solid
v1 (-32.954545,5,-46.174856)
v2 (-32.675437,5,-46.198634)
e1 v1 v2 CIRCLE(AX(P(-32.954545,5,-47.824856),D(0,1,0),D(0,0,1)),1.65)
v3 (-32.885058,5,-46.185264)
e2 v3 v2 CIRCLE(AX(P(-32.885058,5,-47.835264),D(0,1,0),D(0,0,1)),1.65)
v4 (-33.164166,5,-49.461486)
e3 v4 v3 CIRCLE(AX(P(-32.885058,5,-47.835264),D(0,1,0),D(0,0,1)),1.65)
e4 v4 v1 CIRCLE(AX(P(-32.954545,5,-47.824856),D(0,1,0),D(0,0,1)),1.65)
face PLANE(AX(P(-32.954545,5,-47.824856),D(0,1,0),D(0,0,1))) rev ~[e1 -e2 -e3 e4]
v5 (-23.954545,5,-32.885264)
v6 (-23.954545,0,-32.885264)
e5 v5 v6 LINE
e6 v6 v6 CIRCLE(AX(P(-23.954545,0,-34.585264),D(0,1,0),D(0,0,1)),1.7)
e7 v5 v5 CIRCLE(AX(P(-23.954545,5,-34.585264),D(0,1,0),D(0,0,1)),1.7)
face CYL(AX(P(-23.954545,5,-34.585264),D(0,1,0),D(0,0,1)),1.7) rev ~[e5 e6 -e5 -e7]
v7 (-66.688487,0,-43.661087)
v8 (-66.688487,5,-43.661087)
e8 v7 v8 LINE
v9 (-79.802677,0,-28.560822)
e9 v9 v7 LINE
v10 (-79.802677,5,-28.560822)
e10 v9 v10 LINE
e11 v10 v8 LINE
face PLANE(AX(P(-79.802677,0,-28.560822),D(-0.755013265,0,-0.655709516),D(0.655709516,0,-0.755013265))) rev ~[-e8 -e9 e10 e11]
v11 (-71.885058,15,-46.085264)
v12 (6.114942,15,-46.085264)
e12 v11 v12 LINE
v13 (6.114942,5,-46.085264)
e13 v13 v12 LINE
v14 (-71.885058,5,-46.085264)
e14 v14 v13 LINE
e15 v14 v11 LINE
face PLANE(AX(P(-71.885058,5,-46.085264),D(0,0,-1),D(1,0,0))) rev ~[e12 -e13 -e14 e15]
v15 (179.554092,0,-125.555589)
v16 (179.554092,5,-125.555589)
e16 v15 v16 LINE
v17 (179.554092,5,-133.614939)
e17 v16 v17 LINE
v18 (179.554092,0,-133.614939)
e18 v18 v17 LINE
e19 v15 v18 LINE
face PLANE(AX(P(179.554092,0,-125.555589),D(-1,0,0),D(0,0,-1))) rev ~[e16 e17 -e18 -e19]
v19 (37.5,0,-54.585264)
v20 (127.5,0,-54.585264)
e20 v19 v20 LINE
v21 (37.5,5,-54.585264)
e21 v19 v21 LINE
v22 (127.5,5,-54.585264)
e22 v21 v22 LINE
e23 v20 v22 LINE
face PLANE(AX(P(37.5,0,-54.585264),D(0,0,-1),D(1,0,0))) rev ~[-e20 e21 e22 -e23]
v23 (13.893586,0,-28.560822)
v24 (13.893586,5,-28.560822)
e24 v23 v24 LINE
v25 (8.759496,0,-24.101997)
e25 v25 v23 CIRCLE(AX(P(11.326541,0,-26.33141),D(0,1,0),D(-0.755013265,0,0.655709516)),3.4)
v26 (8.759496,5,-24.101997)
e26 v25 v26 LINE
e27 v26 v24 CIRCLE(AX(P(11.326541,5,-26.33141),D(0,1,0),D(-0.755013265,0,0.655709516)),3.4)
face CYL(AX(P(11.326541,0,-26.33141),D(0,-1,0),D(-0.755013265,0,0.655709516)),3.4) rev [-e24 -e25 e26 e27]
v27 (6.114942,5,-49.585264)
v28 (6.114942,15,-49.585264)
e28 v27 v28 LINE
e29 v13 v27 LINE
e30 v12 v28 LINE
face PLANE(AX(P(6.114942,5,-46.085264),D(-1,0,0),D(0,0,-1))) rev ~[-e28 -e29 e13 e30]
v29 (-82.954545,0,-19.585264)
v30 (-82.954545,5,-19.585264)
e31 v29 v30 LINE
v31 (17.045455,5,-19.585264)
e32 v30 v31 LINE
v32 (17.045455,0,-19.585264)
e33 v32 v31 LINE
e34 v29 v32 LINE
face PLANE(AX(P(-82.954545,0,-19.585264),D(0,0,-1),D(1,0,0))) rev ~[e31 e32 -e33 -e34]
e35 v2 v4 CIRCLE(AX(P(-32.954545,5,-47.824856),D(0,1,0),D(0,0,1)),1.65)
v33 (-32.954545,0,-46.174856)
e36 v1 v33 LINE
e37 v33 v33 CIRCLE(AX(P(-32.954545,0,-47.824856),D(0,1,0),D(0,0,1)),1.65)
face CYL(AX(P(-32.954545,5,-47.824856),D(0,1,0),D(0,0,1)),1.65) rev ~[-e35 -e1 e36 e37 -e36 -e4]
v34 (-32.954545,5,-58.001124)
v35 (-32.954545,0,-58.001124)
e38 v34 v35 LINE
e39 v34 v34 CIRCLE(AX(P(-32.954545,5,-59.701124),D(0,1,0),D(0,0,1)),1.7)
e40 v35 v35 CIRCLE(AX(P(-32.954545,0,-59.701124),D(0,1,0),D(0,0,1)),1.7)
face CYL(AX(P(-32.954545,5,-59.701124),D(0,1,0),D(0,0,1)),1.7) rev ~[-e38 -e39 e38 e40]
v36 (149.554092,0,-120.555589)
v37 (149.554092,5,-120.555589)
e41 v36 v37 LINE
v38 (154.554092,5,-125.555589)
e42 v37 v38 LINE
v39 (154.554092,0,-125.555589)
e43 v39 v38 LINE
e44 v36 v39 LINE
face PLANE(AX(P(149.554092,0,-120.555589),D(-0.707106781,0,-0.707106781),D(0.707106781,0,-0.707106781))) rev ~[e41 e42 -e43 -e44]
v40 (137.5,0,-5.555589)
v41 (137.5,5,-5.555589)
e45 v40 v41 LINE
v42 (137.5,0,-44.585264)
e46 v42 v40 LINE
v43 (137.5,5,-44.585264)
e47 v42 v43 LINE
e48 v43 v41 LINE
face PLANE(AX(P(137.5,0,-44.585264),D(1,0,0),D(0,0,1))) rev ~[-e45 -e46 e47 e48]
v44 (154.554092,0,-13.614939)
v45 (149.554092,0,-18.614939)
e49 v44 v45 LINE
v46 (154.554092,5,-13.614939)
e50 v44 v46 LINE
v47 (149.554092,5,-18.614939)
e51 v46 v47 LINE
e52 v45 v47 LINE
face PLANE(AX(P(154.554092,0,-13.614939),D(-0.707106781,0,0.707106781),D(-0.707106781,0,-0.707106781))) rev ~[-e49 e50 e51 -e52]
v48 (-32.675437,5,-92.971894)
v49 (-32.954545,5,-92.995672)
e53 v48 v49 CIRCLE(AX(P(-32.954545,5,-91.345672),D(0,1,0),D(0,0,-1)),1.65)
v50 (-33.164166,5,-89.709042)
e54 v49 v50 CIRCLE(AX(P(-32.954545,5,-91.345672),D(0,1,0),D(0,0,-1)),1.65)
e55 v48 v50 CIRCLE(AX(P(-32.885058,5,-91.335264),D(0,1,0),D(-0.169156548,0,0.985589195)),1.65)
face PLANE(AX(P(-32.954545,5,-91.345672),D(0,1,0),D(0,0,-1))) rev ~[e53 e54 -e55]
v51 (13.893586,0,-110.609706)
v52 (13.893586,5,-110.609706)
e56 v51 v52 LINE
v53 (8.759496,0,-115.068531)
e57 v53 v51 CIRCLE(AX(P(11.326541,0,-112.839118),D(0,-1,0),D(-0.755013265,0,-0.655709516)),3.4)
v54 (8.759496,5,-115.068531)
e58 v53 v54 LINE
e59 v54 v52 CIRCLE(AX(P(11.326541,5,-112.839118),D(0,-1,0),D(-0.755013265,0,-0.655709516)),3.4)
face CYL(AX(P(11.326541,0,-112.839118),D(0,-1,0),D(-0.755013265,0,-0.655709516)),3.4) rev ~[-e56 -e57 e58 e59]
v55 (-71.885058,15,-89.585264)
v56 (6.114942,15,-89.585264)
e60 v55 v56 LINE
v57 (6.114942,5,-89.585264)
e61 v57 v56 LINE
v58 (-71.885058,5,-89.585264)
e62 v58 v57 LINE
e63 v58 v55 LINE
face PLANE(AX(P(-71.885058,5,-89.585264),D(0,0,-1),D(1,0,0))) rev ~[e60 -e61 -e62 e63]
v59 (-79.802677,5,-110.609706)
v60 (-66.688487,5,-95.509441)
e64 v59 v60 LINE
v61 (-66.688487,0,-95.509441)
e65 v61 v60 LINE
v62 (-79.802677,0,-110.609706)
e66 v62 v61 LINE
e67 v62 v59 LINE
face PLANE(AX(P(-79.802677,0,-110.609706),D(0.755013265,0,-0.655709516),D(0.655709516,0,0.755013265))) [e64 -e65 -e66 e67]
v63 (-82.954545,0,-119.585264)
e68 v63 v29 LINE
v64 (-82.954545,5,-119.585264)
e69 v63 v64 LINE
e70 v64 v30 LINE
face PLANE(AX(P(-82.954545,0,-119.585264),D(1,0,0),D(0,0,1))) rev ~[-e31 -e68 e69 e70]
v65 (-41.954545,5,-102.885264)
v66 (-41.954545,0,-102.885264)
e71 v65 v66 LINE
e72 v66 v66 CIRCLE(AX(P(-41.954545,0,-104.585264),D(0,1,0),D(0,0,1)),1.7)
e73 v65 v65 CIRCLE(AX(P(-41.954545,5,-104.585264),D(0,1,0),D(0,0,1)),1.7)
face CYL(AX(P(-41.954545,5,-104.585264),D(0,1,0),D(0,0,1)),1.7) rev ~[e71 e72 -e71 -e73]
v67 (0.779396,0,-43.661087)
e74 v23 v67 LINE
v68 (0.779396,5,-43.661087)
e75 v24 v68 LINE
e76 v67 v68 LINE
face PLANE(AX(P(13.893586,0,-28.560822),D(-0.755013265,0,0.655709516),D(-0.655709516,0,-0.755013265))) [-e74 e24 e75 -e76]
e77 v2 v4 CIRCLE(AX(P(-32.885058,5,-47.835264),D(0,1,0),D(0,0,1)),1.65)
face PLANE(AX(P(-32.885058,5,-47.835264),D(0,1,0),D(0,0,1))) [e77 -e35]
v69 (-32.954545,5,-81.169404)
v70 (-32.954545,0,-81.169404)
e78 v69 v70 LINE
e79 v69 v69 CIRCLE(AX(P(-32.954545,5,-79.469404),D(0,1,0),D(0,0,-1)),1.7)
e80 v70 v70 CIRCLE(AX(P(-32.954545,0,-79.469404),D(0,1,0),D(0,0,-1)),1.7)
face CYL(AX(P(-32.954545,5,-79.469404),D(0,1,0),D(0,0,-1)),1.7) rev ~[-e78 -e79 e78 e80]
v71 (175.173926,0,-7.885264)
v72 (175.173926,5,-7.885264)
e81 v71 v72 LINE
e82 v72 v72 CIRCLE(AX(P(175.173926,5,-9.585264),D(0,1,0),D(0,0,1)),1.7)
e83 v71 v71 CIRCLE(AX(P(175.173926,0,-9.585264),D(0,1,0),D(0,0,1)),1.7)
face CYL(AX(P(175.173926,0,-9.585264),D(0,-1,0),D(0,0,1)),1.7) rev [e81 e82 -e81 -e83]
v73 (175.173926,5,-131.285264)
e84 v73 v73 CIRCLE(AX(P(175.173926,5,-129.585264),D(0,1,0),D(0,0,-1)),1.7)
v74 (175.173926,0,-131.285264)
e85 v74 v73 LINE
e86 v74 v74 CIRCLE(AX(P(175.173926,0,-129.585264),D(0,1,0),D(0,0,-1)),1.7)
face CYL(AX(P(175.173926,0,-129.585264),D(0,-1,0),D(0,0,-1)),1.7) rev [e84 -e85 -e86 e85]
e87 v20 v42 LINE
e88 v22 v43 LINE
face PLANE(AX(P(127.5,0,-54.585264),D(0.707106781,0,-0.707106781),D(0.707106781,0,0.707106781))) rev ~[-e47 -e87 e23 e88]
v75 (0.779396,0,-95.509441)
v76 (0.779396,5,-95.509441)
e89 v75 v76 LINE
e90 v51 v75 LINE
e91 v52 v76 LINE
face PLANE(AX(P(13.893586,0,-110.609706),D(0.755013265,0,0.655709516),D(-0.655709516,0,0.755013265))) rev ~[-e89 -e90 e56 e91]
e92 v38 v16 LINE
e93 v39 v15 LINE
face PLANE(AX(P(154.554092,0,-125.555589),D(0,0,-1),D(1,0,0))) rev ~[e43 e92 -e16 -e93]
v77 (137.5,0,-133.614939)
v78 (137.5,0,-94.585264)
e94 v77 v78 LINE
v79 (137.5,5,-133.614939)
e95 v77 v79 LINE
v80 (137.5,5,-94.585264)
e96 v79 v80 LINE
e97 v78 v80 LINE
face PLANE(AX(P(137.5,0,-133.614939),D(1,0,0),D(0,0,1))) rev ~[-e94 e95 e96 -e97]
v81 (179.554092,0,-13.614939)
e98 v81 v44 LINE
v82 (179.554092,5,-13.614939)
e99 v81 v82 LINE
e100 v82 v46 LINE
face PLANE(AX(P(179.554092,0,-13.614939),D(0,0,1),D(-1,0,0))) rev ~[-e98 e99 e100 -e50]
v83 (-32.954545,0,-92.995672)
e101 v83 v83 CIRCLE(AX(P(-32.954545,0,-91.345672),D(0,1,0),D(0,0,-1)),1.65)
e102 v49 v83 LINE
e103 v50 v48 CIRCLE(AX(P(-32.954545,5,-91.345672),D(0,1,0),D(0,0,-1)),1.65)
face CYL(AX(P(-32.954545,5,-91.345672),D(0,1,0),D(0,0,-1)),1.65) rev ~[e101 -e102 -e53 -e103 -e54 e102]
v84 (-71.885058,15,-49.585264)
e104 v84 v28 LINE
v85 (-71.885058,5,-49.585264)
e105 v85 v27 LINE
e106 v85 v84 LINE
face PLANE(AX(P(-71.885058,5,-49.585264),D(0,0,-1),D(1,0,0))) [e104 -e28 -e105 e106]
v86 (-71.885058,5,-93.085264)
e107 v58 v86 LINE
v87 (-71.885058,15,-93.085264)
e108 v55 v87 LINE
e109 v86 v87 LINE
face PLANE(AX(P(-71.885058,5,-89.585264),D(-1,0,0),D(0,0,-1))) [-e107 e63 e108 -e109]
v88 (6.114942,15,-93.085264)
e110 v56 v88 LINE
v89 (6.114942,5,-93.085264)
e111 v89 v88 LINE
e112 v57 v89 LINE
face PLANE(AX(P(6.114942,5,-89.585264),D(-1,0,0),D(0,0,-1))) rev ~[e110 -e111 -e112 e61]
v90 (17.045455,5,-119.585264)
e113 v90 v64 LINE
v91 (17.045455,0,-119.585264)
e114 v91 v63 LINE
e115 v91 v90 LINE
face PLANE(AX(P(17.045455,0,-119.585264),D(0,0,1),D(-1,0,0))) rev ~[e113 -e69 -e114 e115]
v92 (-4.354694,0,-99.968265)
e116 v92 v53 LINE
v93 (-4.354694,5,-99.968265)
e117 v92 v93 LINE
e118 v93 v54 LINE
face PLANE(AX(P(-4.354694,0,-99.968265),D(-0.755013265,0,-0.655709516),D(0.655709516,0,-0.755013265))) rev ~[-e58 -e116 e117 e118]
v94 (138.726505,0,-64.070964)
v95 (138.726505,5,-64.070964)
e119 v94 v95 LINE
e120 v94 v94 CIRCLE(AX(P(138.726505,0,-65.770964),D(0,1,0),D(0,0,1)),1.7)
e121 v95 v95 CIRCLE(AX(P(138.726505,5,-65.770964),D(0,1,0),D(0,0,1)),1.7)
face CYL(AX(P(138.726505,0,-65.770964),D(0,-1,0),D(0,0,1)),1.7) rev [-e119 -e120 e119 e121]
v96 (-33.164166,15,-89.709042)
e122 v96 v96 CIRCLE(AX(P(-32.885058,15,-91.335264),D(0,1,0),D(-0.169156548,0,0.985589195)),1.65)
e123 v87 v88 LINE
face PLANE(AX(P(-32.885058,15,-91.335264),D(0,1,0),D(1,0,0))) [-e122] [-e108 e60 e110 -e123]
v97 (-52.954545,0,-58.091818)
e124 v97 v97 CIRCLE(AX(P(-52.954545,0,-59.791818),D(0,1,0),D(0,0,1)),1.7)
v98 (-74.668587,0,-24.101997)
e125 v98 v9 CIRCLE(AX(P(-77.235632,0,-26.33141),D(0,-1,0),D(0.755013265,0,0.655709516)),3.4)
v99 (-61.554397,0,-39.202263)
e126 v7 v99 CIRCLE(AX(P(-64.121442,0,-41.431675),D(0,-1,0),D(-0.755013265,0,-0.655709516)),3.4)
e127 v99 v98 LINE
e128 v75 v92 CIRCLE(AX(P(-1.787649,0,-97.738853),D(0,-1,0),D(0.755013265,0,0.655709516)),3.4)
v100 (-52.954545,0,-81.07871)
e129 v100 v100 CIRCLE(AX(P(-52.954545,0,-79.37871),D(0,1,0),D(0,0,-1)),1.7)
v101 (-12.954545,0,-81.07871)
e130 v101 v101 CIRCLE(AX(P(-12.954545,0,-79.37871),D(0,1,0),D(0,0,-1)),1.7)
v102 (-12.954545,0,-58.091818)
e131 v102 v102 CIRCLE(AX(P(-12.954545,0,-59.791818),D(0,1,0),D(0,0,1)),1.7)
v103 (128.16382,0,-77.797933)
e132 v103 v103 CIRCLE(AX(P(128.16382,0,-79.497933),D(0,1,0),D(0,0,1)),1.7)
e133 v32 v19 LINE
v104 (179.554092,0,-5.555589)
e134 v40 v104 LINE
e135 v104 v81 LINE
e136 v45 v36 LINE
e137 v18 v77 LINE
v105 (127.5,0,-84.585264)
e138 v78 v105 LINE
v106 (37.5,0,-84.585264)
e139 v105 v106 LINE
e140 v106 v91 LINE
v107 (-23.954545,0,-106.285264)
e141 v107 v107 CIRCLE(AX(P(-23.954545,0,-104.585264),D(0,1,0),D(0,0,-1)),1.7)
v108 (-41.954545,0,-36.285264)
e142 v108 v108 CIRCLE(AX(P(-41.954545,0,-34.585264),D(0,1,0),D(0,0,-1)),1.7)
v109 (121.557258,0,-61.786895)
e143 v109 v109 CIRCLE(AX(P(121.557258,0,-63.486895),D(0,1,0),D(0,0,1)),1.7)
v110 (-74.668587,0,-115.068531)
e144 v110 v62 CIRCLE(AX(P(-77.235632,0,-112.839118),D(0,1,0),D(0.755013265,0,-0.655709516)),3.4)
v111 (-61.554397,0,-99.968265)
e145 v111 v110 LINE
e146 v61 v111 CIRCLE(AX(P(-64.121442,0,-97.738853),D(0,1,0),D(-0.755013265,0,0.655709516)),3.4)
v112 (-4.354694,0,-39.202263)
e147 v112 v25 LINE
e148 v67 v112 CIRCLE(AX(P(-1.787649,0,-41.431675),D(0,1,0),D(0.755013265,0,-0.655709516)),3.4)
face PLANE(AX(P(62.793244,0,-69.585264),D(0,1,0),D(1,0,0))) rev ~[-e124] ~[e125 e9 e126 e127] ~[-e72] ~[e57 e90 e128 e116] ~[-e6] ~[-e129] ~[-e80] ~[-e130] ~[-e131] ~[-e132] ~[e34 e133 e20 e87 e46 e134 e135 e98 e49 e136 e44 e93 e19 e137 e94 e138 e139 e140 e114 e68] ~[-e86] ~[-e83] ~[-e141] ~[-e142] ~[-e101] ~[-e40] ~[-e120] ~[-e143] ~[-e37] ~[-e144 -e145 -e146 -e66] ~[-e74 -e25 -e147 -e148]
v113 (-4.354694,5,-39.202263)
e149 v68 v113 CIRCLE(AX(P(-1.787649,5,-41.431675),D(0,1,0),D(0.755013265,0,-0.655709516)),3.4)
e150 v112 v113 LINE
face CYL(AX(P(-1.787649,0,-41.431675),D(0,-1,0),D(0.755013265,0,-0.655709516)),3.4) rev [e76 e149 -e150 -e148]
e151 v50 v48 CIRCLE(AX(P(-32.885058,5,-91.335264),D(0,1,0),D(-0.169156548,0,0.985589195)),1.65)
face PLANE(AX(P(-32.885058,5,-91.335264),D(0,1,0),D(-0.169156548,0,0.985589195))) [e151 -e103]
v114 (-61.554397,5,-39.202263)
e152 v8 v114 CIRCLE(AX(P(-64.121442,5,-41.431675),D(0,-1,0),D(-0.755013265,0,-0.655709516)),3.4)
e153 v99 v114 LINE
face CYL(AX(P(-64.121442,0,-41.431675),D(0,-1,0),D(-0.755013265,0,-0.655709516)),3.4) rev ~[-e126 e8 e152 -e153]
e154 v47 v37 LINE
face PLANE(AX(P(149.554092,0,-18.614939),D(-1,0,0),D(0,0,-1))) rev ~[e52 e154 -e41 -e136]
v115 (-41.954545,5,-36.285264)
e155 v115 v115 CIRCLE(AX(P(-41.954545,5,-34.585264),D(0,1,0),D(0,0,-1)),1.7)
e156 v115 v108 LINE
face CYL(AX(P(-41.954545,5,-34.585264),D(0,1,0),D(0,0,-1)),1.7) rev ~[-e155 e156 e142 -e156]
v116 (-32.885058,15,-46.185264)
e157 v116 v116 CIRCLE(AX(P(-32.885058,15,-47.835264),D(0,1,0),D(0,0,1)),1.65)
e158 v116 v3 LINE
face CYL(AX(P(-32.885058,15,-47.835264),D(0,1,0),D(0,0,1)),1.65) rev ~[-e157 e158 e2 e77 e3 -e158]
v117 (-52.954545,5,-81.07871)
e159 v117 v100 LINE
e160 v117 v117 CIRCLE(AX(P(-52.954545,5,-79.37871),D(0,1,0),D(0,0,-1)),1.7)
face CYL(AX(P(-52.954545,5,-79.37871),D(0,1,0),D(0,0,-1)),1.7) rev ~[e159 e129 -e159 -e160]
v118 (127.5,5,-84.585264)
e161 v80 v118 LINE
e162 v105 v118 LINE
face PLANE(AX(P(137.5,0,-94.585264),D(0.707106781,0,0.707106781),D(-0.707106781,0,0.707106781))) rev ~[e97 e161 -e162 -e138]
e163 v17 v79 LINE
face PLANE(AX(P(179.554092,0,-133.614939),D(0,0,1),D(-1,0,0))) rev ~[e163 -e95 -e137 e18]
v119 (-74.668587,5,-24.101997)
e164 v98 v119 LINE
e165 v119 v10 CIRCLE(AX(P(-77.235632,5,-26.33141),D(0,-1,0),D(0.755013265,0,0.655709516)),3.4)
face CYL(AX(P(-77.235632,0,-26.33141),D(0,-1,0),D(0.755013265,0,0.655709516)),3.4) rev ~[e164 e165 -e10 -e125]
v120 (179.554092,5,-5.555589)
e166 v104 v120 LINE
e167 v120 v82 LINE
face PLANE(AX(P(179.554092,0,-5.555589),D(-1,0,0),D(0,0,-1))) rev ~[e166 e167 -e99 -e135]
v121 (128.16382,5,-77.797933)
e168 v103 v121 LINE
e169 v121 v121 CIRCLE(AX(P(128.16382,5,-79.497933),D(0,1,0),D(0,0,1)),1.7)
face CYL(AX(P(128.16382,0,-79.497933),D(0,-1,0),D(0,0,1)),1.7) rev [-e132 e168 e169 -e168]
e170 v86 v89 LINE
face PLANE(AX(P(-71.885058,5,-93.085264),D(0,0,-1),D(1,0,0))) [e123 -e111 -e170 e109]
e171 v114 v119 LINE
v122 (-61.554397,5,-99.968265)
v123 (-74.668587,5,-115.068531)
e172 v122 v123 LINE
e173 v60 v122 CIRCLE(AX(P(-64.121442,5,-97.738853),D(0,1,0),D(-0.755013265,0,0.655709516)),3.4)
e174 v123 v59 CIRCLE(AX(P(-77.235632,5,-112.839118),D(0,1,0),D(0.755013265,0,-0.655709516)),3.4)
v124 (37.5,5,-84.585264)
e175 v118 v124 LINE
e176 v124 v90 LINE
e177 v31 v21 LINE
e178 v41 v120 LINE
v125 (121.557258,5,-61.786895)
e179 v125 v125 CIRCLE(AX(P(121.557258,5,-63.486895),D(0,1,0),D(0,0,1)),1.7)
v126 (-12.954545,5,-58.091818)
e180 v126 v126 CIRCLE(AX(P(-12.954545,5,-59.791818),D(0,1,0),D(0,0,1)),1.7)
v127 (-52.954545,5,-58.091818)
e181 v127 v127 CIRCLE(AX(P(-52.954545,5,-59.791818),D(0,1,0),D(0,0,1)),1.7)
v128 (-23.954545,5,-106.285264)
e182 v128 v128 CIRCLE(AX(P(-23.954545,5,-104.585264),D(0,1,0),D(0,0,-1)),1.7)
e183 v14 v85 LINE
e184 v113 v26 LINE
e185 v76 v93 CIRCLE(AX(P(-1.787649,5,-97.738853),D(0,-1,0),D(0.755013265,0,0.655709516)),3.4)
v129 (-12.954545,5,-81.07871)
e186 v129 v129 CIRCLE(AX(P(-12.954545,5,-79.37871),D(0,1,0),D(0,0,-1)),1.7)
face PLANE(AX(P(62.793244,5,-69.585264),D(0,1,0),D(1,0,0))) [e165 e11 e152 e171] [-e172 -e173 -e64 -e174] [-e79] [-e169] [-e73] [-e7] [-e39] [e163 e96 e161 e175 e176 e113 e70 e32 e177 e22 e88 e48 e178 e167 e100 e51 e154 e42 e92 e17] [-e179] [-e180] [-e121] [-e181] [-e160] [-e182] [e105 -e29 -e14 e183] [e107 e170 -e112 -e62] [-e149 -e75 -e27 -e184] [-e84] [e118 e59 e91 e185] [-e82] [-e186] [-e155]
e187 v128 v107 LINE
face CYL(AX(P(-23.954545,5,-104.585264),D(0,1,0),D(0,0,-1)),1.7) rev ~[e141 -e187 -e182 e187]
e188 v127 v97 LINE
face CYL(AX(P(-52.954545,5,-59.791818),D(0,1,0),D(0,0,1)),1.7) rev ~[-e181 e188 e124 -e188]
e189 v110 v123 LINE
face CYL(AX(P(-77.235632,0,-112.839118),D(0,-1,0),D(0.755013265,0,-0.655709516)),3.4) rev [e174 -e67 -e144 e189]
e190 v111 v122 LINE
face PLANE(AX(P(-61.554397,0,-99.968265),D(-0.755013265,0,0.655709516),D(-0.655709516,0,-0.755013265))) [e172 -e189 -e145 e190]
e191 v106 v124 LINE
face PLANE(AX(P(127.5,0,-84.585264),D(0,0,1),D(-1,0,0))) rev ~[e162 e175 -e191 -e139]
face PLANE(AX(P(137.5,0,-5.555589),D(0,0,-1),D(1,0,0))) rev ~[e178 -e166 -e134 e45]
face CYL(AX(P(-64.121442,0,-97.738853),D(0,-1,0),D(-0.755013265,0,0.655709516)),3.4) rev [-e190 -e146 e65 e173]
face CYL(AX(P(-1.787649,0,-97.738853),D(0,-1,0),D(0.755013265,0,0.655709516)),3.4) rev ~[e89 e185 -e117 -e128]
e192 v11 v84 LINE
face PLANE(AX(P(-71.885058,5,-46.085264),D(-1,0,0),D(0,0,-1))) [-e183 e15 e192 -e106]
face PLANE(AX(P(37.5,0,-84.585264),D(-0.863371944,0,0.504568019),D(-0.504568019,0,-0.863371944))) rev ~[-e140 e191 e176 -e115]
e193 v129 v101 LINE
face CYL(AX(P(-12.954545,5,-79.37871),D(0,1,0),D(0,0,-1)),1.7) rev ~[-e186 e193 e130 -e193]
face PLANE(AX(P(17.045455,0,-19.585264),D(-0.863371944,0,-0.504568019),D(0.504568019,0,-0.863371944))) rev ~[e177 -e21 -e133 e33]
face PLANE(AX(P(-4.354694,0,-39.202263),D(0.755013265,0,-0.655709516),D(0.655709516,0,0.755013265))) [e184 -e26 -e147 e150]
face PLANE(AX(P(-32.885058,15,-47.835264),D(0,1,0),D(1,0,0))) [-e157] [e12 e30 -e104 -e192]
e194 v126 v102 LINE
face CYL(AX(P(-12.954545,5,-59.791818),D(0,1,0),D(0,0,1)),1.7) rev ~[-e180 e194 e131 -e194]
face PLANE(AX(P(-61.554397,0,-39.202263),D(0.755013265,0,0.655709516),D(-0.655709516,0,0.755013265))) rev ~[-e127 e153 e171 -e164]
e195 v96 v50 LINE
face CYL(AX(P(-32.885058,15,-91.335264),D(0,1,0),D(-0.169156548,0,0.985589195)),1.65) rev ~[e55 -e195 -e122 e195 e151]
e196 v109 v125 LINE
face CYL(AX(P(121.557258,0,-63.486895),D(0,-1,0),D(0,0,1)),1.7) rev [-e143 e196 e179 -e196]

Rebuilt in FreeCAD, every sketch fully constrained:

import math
import FreeCAD as App
import Part
import Sketcher
from FreeCAD import Vector
Q = App.Units.Quantity

doc = App.newDocument("Part")
body = doc.addObject("PartDesign::Body", "Body")

sketch1 = body.newObject("Sketcher::SketchObject", "Sketch")
sketch1.AttachmentSupport = (doc.getObject("XZ_Plane"), [""])
sketch1.MapMode = "FlatFace"
sketch1.addGeometry(Part.LineSegment(Vector(137.5, -44.6, 0), Vector(137.5, -5.6, 0)), False)
sketch1.addGeometry(Part.LineSegment(Vector(137.5, -5.6, 0), Vector(179.6, -5.6, 0)), False)
sketch1.addGeometry(Part.LineSegment(Vector(179.6, -5.6, 0), Vector(179.6, -13.6, 0)), False)
sketch1.addGeometry(Part.LineSegment(Vector(179.6, -13.6, 0), Vector(154.6, -13.6, 0)), False)
sketch1.addGeometry(Part.LineSegment(Vector(154.6, -13.6, 0), Vector(149.6, -18.6, 0)), False)
sketch1.addGeometry(Part.LineSegment(Vector(149.6, -18.6, 0), Vector(149.6, -120.6, 0)), False)
sketch1.addGeometry(Part.LineSegment(Vector(149.6, -120.6, 0), Vector(154.6, -125.6, 0)), False)
sketch1.addGeometry(Part.LineSegment(Vector(154.6, -125.6, 0), Vector(179.6, -125.6, 0)), False)
sketch1.addGeometry(Part.LineSegment(Vector(179.6, -125.6, 0), Vector(179.6, -133.6, 0)), False)
sketch1.addGeometry(Part.LineSegment(Vector(179.6, -133.6, 0), Vector(137.5, -133.6, 0)), False)
sketch1.addGeometry(Part.LineSegment(Vector(137.5, -133.6, 0), Vector(137.5, -94.6, 0)), False)
sketch1.addGeometry(Part.LineSegment(Vector(137.5, -94.6, 0), Vector(127.5, -84.6, 0)), False)
sketch1.addGeometry(Part.LineSegment(Vector(127.5, -84.6, 0), Vector(37.5, -84.6, 0)), False)
sketch1.addGeometry(Part.LineSegment(Vector(37.5, -84.6, 0), Vector(17, -119.6, 0)), False)
sketch1.addGeometry(Part.LineSegment(Vector(17, -119.6, 0), Vector(-83, -119.6, 0)), False)
sketch1.addGeometry(Part.LineSegment(Vector(-83, -119.6, 0), Vector(-83, -19.6, 0)), False)
sketch1.addGeometry(Part.LineSegment(Vector(-83, -19.6, 0), Vector(17, -19.6, 0)), False)
sketch1.addGeometry(Part.LineSegment(Vector(17, -19.6, 0), Vector(37.5, -54.6, 0)), False)
sketch1.addGeometry(Part.LineSegment(Vector(37.5, -54.6, 0), Vector(127.5, -54.6, 0)), False)
sketch1.addGeometry(Part.LineSegment(Vector(127.5, -54.6, 0), Vector(137.5, -44.6, 0)), False)
sketch1.addGeometry(Part.ArcOfCircle(Part.Circle(Vector(-77.2, -26.3, 0), Vector(0, 0, 1), 3.4), math.radians(41), math.radians(221)), False)
sketch1.addGeometry(Part.LineSegment(Vector(-79.8, -28.6, 0), Vector(-66.7, -43.7, 0)), False)
sketch1.addGeometry(Part.ArcOfCircle(Part.Circle(Vector(-64.1, -41.4, 0), Vector(0, 0, 1), 3.4), math.radians(-139), math.radians(41)), False)
sketch1.addGeometry(Part.LineSegment(Vector(-61.6, -39.2, 0), Vector(-74.7, -24.1, 0)), False)
sketch1.addGeometry(Part.LineSegment(Vector(0.8, -43.7, 0), Vector(13.9, -28.6, 0)), False)
sketch1.addGeometry(Part.ArcOfCircle(Part.Circle(Vector(11.3, -26.3, 0), Vector(0, 0, 1), 3.4), math.radians(-41), math.radians(139)), False)
sketch1.addGeometry(Part.LineSegment(Vector(8.8, -24.1, 0), Vector(-4.4, -39.2, 0)), False)
sketch1.addGeometry(Part.ArcOfCircle(Part.Circle(Vector(-1.8, -41.4, 0), Vector(0, 0, 1), 3.4), math.radians(139), math.radians(319)), False)
sketch1.addGeometry(Part.Circle(Vector(175.2, -9.6, 0), Vector(0, 0, 1), 1.7), False)
sketch1.addGeometry(Part.Circle(Vector(121.6, -63.5, 0), Vector(0, 0, 1), 1.7), False)
sketch1.addGeometry(Part.Circle(Vector(138.7, -65.8, 0), Vector(0, 0, 1), 1.7), False)
sketch1.addGeometry(Part.LineSegment(Vector(-66.7, -95.5, 0), Vector(-79.8, -110.6, 0)), False)
sketch1.addGeometry(Part.ArcOfCircle(Part.Circle(Vector(-77.2, -112.8, 0), Vector(0, 0, 1), 3.4), math.radians(139), math.radians(319)), False)
sketch1.addGeometry(Part.LineSegment(Vector(-74.7, -115.1, 0), Vector(-61.6, -100, 0)), False)
sketch1.addGeometry(Part.ArcOfCircle(Part.Circle(Vector(-64.1, -97.7, 0), Vector(0, 0, 1), 3.4), math.radians(-41), math.radians(139)), False)
sketch1.addGeometry(Part.ArcOfCircle(Part.Circle(Vector(11.3, -112.8, 0), Vector(0, 0, 1), 3.4), math.radians(-139), math.radians(41)), False)
sketch1.addGeometry(Part.LineSegment(Vector(13.9, -110.6, 0), Vector(0.8, -95.5, 0)), False)
sketch1.addGeometry(Part.ArcOfCircle(Part.Circle(Vector(-1.8, -97.7, 0), Vector(0, 0, 1), 3.4), math.radians(41), math.radians(221)), False)
sketch1.addGeometry(Part.LineSegment(Vector(-4.4, -100, 0), Vector(8.8, -115.1, 0)), False)
sketch1.addGeometry(Part.Circle(Vector(128.2, -79.5, 0), Vector(0, 0, 1), 1.7), False)
sketch1.addGeometry(Part.Circle(Vector(175.2, -129.6, 0), Vector(0, 0, 1), 1.7), False)
sketch1.addConstraint(Sketcher.Constraint("Coincident", 0, 2, 1, 1))
sketch1.addConstraint(Sketcher.Constraint("Coincident", 1, 2, 2, 1))
sketch1.addConstraint(Sketcher.Constraint("Coincident", 2, 2, 3, 1))
sketch1.addConstraint(Sketcher.Constraint("Coincident", 3, 2, 4, 1))
sketch1.addConstraint(Sketcher.Constraint("Coincident", 4, 2, 5, 1))
sketch1.addConstraint(Sketcher.Constraint("Coincident", 5, 2, 6, 1))
sketch1.addConstraint(Sketcher.Constraint("Coincident", 6, 2, 7, 1))
sketch1.addConstraint(Sketcher.Constraint("Coincident", 7, 2, 8, 1))
sketch1.addConstraint(Sketcher.Constraint("Coincident", 8, 2, 9, 1))
sketch1.addConstraint(Sketcher.Constraint("Coincident", 9, 2, 10, 1))
sketch1.addConstraint(Sketcher.Constraint("Coincident", 10, 2, 11, 1))
sketch1.addConstraint(Sketcher.Constraint("Coincident", 11, 2, 12, 1))
sketch1.addConstraint(Sketcher.Constraint("Coincident", 12, 2, 13, 1))
sketch1.addConstraint(Sketcher.Constraint("Coincident", 13, 2, 14, 1))
sketch1.addConstraint(Sketcher.Constraint("Coincident", 14, 2, 15, 1))
sketch1.addConstraint(Sketcher.Constraint("Coincident", 15, 2, 16, 1))
sketch1.addConstraint(Sketcher.Constraint("Coincident", 16, 2, 17, 1))
sketch1.addConstraint(Sketcher.Constraint("Coincident", 17, 2, 18, 1))
sketch1.addConstraint(Sketcher.Constraint("Coincident", 18, 2, 19, 1))
sketch1.addConstraint(Sketcher.Constraint("Coincident", 19, 2, 0, 1))
sketch1.addConstraint(Sketcher.Constraint("Tangent", 20, 2, 21, 1))
sketch1.addConstraint(Sketcher.Constraint("Tangent", 21, 2, 22, 1))
sketch1.addConstraint(Sketcher.Constraint("Tangent", 22, 2, 23, 1))
sketch1.addConstraint(Sketcher.Constraint("Tangent", 23, 2, 20, 1))
sketch1.addConstraint(Sketcher.Constraint("Tangent", 24, 2, 25, 1))
sketch1.addConstraint(Sketcher.Constraint("Tangent", 25, 2, 26, 1))
sketch1.addConstraint(Sketcher.Constraint("Tangent", 26, 2, 27, 1))
sketch1.addConstraint(Sketcher.Constraint("Tangent", 27, 2, 24, 1))
sketch1.addConstraint(Sketcher.Constraint("Tangent", 31, 2, 32, 1))
sketch1.addConstraint(Sketcher.Constraint("Tangent", 32, 2, 33, 1))
sketch1.addConstraint(Sketcher.Constraint("Tangent", 33, 2, 34, 1))
sketch1.addConstraint(Sketcher.Constraint("Tangent", 34, 2, 31, 1))
sketch1.addConstraint(Sketcher.Constraint("Tangent", 35, 2, 36, 1))
sketch1.addConstraint(Sketcher.Constraint("Tangent", 36, 2, 37, 1))
sketch1.addConstraint(Sketcher.Constraint("Tangent", 37, 2, 38, 1))
sketch1.addConstraint(Sketcher.Constraint("Tangent", 38, 2, 35, 1))
sketch1.addConstraint(Sketcher.Constraint("Vertical", 0))
sketch1.addConstraint(Sketcher.Constraint("Horizontal", 1))
sketch1.addConstraint(Sketcher.Constraint("Vertical", 2))
sketch1.addConstraint(Sketcher.Constraint("Horizontal", 3))
sketch1.addConstraint(Sketcher.Constraint("Vertical", 5))
sketch1.addConstraint(Sketcher.Constraint("Horizontal", 7))
sketch1.addConstraint(Sketcher.Constraint("Vertical", 8))
sketch1.addConstraint(Sketcher.Constraint("Horizontal", 9))
sketch1.addConstraint(Sketcher.Constraint("Vertical", 10))
sketch1.addConstraint(Sketcher.Constraint("Horizontal", 12))
sketch1.addConstraint(Sketcher.Constraint("Horizontal", 14))
sketch1.addConstraint(Sketcher.Constraint("Vertical", 15))
sketch1.addConstraint(Sketcher.Constraint("Horizontal", 16))
sketch1.addConstraint(Sketcher.Constraint("Horizontal", 18))
sketch1.addConstraint(Sketcher.Constraint("Equal", 20, 22))
sketch1.addConstraint(Sketcher.Constraint("Equal", 22, 25))
sketch1.addConstraint(Sketcher.Constraint("Equal", 25, 27))
sketch1.addConstraint(Sketcher.Constraint("Equal", 28, 29))
sketch1.addConstraint(Sketcher.Constraint("Equal", 29, 30))
sketch1.addConstraint(Sketcher.Constraint("Equal", 27, 32))
sketch1.addConstraint(Sketcher.Constraint("Equal", 32, 34))
sketch1.addConstraint(Sketcher.Constraint("Equal", 34, 35))
sketch1.addConstraint(Sketcher.Constraint("Equal", 35, 37))
sketch1.addConstraint(Sketcher.Constraint("Equal", 30, 39))
sketch1.addConstraint(Sketcher.Constraint("Equal", 39, 40))
sketch1.addConstraint(Sketcher.Constraint("Perpendicular", 4, 6))
sketch1.addConstraint(Sketcher.Constraint("Parallel", 6, 11))
sketch1.addConstraint(Sketcher.Constraint("Perpendicular", 11, 19))
sketch1.addConstraint(Sketcher.Constraint("Parallel", 26, 31))
sketch1.addConstraint(Sketcher.Constraint("Parallel", 23, 36))
sketch1.addConstraint(Sketcher.Constraint("Horizontal", 20, 3, 25, 3))
sketch1.addConstraint(Sketcher.Constraint("Horizontal", 22, 3, 27, 3))
sketch1.addConstraint(Sketcher.Constraint("Horizontal", 32, 3, 35, 3))
sketch1.addConstraint(Sketcher.Constraint("Horizontal", 34, 3, 37, 3))
sketch1.addConstraint(Sketcher.Constraint("Horizontal", 20, 2, 24, 2))
sketch1.addConstraint(Sketcher.Constraint("Vertical", 20, 3, 32, 3))
sketch1.addConstraint(Sketcher.Constraint("Vertical", 22, 3, 34, 3))
sketch1.addConstraint(Sketcher.Constraint("Vertical", 25, 3, 35, 3))
sketch1.addConstraint(Sketcher.Constraint("Vertical", 28, 3, 40, 3))
sketch1.addConstraint(Sketcher.Constraint("Vertical", 3, 2, 6, 2))
sketch1.addConstraint(Sketcher.Constraint("Vertical", 2, 2, 7, 2))
sketch1.addConstraint(Sketcher.Constraint("Vertical", 0, 2, 9, 2))
sketch1.addConstraint(Sketcher.Constraint("Vertical", 13, 2, 16, 2))
sketch1.addConstraint(Sketcher.Constraint("Vertical", 12, 2, 17, 2))
sketch1.addConstraint(Sketcher.Constraint("Vertical", 11, 2, 18, 2))
sketch1.addConstraint(Sketcher.Constraint("Equal", 2, 8))
sketch1.addConstraint(Sketcher.Constraint("Equal", 0, 10))
sketch1.addConstraint(Sketcher.Constraint("Equal", 16, 15))
sketch1.addConstraint(Sketcher.Constraint("Equal", 4, 6))
sketch1.addConstraint(Sketcher.Constraint("Equal", 13, 17))
sketch1.addConstraint(Sketcher.Constraint("Diameter", 28, Q("3.4 mm")))
sketch1.addConstraint(Sketcher.Constraint("Radius", 20, Q("3.4 mm")))
sketch1.addConstraint(Sketcher.Constraint("DistanceX", 3, 2, 3, 1, Q("25 mm")))
sketch1.addConstraint(Sketcher.Constraint("DistanceX", 12, 2, 12, 1, Q("90 mm")))
sketch1.addConstraint(Sketcher.Constraint("DistanceX", 14, 2, 14, 1, Q("100 mm")))
sketch1.addConstraint(Sketcher.Constraint("Distance", 21, Q("20 mm")))
sketch1.addConstraint(Sketcher.Constraint("DistanceY", 40, 3, 28, 3, Q("120 mm")))
sketch1.addConstraint(Sketcher.Constraint("DistanceX", 4, 2, 3, 2, Q("5 mm")))
sketch1.addConstraint(Sketcher.Constraint("DistanceX", 11, 2, 10, 2, Q("10 mm")))
sketch1.addConstraint(Sketcher.Constraint("DistanceY", 13, 2, 12, 2, Q("35 mm")))
sketch1.addConstraint(Sketcher.Constraint("DistanceX", -1, 1, 0, 2, Q("137.5 mm")))
sketch1.addConstraint(Sketcher.Constraint("DistanceY", 22, 2, 15, 2, Q("19.616999 mm")))
sketch1.addConstraint(Sketcher.Constraint("DistanceY", 14, 2, 33, 2, Q("19.616999 mm")))
sketch1.addConstraint(Sketcher.Constraint("DistanceY", 2, 2, 2, 1, Q("8.059349 mm")))
sketch1.addConstraint(Sketcher.Constraint("DistanceY", 5, 2, 5, 1, Q("101.940651 mm")))
sketch1.addConstraint(Sketcher.Constraint("DistanceX", 22, 3, 29, 3, Q("185.6787 mm")))
sketch1.addConstraint(Sketcher.Constraint("DistanceY", 30, 3, 28, 3, Q("56.1857 mm")))
sketch1.addConstraint(Sketcher.Constraint("DistanceY", 10, 2, 30, 3, Q("28.8143 mm")))
sketch1.addConstraint(Sketcher.Constraint("DistanceX", 27, 2, 25, 2, Q("7.9801 mm")))
sketch1.addConstraint(Sketcher.Constraint("DistanceX", 1, 1, 1, 2, Q("42.054092 mm")))
sketch1.addConstraint(Sketcher.Constraint("DistanceY", 20, 3, -1, 1, Q("26.33141 mm")))
sketch1.addConstraint(Sketcher.Constraint("DistanceX", 22, 3, -1, 1, Q("64.121442 mm")))
sketch1.addConstraint(Sketcher.Constraint("DistanceX", -1, 1, 25, 3, Q("11.326541 mm")))
sketch1.addConstraint(Sketcher.Constraint("DistanceX", -1, 1, 39, 3, Q("128.16382 mm")))
sketch1.addConstraint(Sketcher.Constraint("DistanceX", 20, 3, 28, 3, Q("252.409558 mm")))
sketch1.addConstraint(Sketcher.Constraint("DistanceY", 29, 3, 28, 3, Q("53.901631 mm")))
sketch1.addConstraint(Sketcher.Constraint("DistanceX", 30, 3, 28, 3, Q("36.447421 mm")))
sketch1.addConstraint(Sketcher.Constraint("DistanceY", 39, 3, 29, 3, Q("16.011038 mm")))
sketch1.addConstraint(Sketcher.Constraint("DistanceX", 15, 2, 20, 2, Q("3.151868 mm")))
pad1 = body.newObject("PartDesign::Pad", "Pad")
pad1.Profile = sketch1
pad1.Length = 5
pad1.Reversed = True

sketch2 = body.newObject("Sketcher::SketchObject", "Sketch001")
sketch2.AttachmentSupport = (doc.getObject("XZ_Plane"), [""])
sketch2.MapMode = "FlatFace"
sketch2.AttachmentOffset = App.Placement(Vector(0, 0, -5), App.Rotation())
sketch2.addGeometry(Part.LineSegment(Vector(-71.9, -49.6, 0), Vector(-71.9, -46.1, 0)), False)
sketch2.addGeometry(Part.LineSegment(Vector(-71.9, -46.1, 0), Vector(6.1, -46.1, 0)), False)
sketch2.addGeometry(Part.LineSegment(Vector(6.1, -46.1, 0), Vector(6.1, -49.6, 0)), False)
sketch2.addGeometry(Part.LineSegment(Vector(6.1, -49.6, 0), Vector(-71.9, -49.6, 0)), False)
sketch2.addGeometry(Part.LineSegment(Vector(-71.9, -93.1, 0), Vector(-71.9, -89.6, 0)), False)
sketch2.addGeometry(Part.LineSegment(Vector(-71.9, -89.6, 0), Vector(6.1, -89.6, 0)), False)
sketch2.addGeometry(Part.LineSegment(Vector(6.1, -89.6, 0), Vector(6.1, -93.1, 0)), False)
sketch2.addGeometry(Part.LineSegment(Vector(6.1, -93.1, 0), Vector(-71.9, -93.1, 0)), False)
sketch2.addConstraint(Sketcher.Constraint("Coincident", 0, 2, 1, 1))
sketch2.addConstraint(Sketcher.Constraint("Coincident", 1, 2, 2, 1))
sketch2.addConstraint(Sketcher.Constraint("Coincident", 2, 2, 3, 1))
sketch2.addConstraint(Sketcher.Constraint("Coincident", 3, 2, 0, 1))
sketch2.addConstraint(Sketcher.Constraint("Coincident", 4, 2, 5, 1))
sketch2.addConstraint(Sketcher.Constraint("Coincident", 5, 2, 6, 1))
sketch2.addConstraint(Sketcher.Constraint("Coincident", 6, 2, 7, 1))
sketch2.addConstraint(Sketcher.Constraint("Coincident", 7, 2, 4, 1))
sketch2.addConstraint(Sketcher.Constraint("Vertical", 0))
sketch2.addConstraint(Sketcher.Constraint("Horizontal", 1))
sketch2.addConstraint(Sketcher.Constraint("Vertical", 2))
sketch2.addConstraint(Sketcher.Constraint("Horizontal", 3))
sketch2.addConstraint(Sketcher.Constraint("Vertical", 4))
sketch2.addConstraint(Sketcher.Constraint("Horizontal", 5))
sketch2.addConstraint(Sketcher.Constraint("Vertical", 6))
sketch2.addConstraint(Sketcher.Constraint("Horizontal", 7))
sketch2.addConstraint(Sketcher.Constraint("Vertical", 3, 2, 4, 2))
sketch2.addConstraint(Sketcher.Constraint("Vertical", 2, 2, 5, 2))
sketch2.addConstraint(Sketcher.Constraint("Equal", 2, 4))
sketch2.addConstraint(Sketcher.Constraint("DistanceX", 1, 1, 1, 2, Q("78 mm")))
sketch2.addConstraint(Sketcher.Constraint("DistanceY", 0, 1, 0, 2, Q("3.5 mm")))
sketch2.addConstraint(Sketcher.Constraint("DistanceY", 4, 2, 3, 2, Q("40 mm")))
sketch2.addConstraint(Sketcher.Constraint("DistanceX", 0, 2, -1, 1, Q("71.885058 mm")))
sketch2.addConstraint(Sketcher.Constraint("DistanceY", 0, 2, -1, 1, Q("46.085264 mm")))
pad2 = body.newObject("PartDesign::Pad", "Pad001")
pad2.Profile = sketch2
pad2.Length = 10
pad2.Reversed = True

sketch3 = body.newObject("Sketcher::SketchObject", "Sketch002")
sketch3.AttachmentSupport = (doc.getObject("XZ_Plane"), [""])
sketch3.MapMode = "FlatFace"
sketch3.AttachmentOffset = App.Placement(Vector(0, 0, -5), App.Rotation())
sketch3.addGeometry(Part.Circle(Vector(-33, -47.8, 0), Vector(0, 0, 1), 1.6), False)
sketch3.addGeometry(Part.Circle(Vector(-33, -59.7, 0), Vector(0, 0, 1), 1.7), False)
sketch3.addGeometry(Part.Circle(Vector(-13, -59.8, 0), Vector(0, 0, 1), 1.7), False)
sketch3.addGeometry(Part.Circle(Vector(-53, -59.8, 0), Vector(0, 0, 1), 1.7), False)
sketch3.addGeometry(Part.Circle(Vector(-33, -91.3, 0), Vector(0, 0, 1), 1.6), False)
sketch3.addGeometry(Part.Circle(Vector(-13, -79.4, 0), Vector(0, 0, 1), 1.7), False)
sketch3.addGeometry(Part.Circle(Vector(-33, -79.5, 0), Vector(0, 0, 1), 1.7), False)
sketch3.addGeometry(Part.Circle(Vector(-53, -79.4, 0), Vector(0, 0, 1), 1.7), False)
sketch3.addConstraint(Sketcher.Constraint("Equal", 1, 2))
sketch3.addConstraint(Sketcher.Constraint("Equal", 2, 3))
sketch3.addConstraint(Sketcher.Constraint("Equal", 0, 4))
sketch3.addConstraint(Sketcher.Constraint("Equal", 3, 5))
sketch3.addConstraint(Sketcher.Constraint("Equal", 5, 6))
sketch3.addConstraint(Sketcher.Constraint("Equal", 6, 7))
sketch3.addConstraint(Sketcher.Constraint("Horizontal", 2, 3, 3, 3))
sketch3.addConstraint(Sketcher.Constraint("Horizontal", 5, 3, 7, 3))
sketch3.addConstraint(Sketcher.Constraint("Vertical", 0, 3, 1, 3))
sketch3.addConstraint(Sketcher.Constraint("Vertical", 1, 3, 4, 3))
sketch3.addConstraint(Sketcher.Constraint("Vertical", 2, 3, 5, 3))
sketch3.addConstraint(Sketcher.Constraint("Vertical", 4, 3, 6, 3))
sketch3.addConstraint(Sketcher.Constraint("Vertical", 3, 3, 7, 3))
sketch3.addConstraint(Sketcher.Constraint("Diameter", 0, Q("3.3 mm")))
sketch3.addConstraint(Sketcher.Constraint("Diameter", 1, Q("3.4 mm")))
sketch3.addConstraint(Sketcher.Constraint("DistanceX", 1, 3, 2, 3, Q("20 mm")))
sketch3.addConstraint(Sketcher.Constraint("DistanceX", 3, 3, 1, 3, Q("20 mm")))
sketch3.addConstraint(Sketcher.Constraint("DistanceY", 2, 3, -1, 1, Q("59.791818 mm")))
sketch3.addConstraint(Sketcher.Constraint("DistanceY", 5, 3, -1, 1, Q("79.37871 mm")))
sketch3.addConstraint(Sketcher.Constraint("DistanceY", 1, 3, 0, 3, Q("11.876268 mm")))
sketch3.addConstraint(Sketcher.Constraint("DistanceY", 4, 3, 1, 3, Q("31.644548 mm")))
sketch3.addConstraint(Sketcher.Constraint("DistanceY", 4, 3, 6, 3, Q("11.876268 mm")))
sketch3.addConstraint(Sketcher.Constraint("DistanceX", 0, 3, -1, 1, Q("32.954545 mm")))
sketch3.addConstraint(Sketcher.Constraint("DistanceY", 0, 3, -1, 1, Q("47.824856 mm")))
pocket1 = body.newObject("PartDesign::Pocket", "Pocket")
pocket1.Profile = sketch3
pocket1.Type = "ThroughAll"
pocket1.Reversed = True

sketch4 = body.newObject("Sketcher::SketchObject", "Sketch003")
sketch4.AttachmentSupport = (doc.getObject("XZ_Plane"), [""])
sketch4.MapMode = "FlatFace"
sketch4.AttachmentOffset = App.Placement(Vector(0, 0, -15), App.Rotation())
sketch4.addGeometry(Part.Circle(Vector(-32.9, -47.8, 0), Vector(0, 0, 1), 1.6), False)
sketch4.addGeometry(Part.Circle(Vector(-32.9, -91.3, 0), Vector(0, 0, 1), 1.6), False)
sketch4.addConstraint(Sketcher.Constraint("Equal", 0, 1))
sketch4.addConstraint(Sketcher.Constraint("Vertical", 0, 3, 1, 3))
sketch4.addConstraint(Sketcher.Constraint("Diameter", 0, Q("3.3 mm")))
sketch4.addConstraint(Sketcher.Constraint("DistanceY", 1, 3, 0, 3, Q("43.5 mm")))
sketch4.addConstraint(Sketcher.Constraint("DistanceX", 0, 3, -1, 1, Q("32.885058 mm")))
sketch4.addConstraint(Sketcher.Constraint("DistanceY", 0, 3, -1, 1, Q("47.835264 mm")))
pocket2 = body.newObject("PartDesign::Pocket", "Pocket001")
pocket2.Profile = sketch4
pocket2.Length = 10
pocket2.Reversed = True

sketch5 = body.newObject("Sketcher::SketchObject", "Sketch004")
sketch5.AttachmentSupport = (doc.getObject("XZ_Plane"), [""])
sketch5.MapMode = "FlatFace"
sketch5.AttachmentOffset = App.Placement(Vector(0, 0, -5), App.Rotation())
sketch5.addGeometry(Part.Circle(Vector(-24, -34.6, 0), Vector(0, 0, 1), 1.7), False)
sketch5.addGeometry(Part.Circle(Vector(-42, -34.6, 0), Vector(0, 0, 1), 1.7), False)
sketch5.addGeometry(Part.Circle(Vector(-42, -104.6, 0), Vector(0, 0, 1), 1.7), False)
sketch5.addGeometry(Part.Circle(Vector(-24, -104.6, 0), Vector(0, 0, 1), 1.7), False)
sketch5.addConstraint(Sketcher.Constraint("Equal", 0, 1))
sketch5.addConstraint(Sketcher.Constraint("Equal", 1, 2))
sketch5.addConstraint(Sketcher.Constraint("Equal", 2, 3))
sketch5.addConstraint(Sketcher.Constraint("Horizontal", 0, 3, 1, 3))
sketch5.addConstraint(Sketcher.Constraint("Horizontal", 2, 3, 3, 3))
sketch5.addConstraint(Sketcher.Constraint("Vertical", 1, 3, 2, 3))
sketch5.addConstraint(Sketcher.Constraint("Vertical", 0, 3, 3, 3))
sketch5.addConstraint(Sketcher.Constraint("Diameter", 0, Q("3.4 mm")))
sketch5.addConstraint(Sketcher.Constraint("DistanceX", 1, 3, 0, 3, Q("18 mm")))
sketch5.addConstraint(Sketcher.Constraint("DistanceY", 2, 3, 1, 3, Q("70 mm")))
sketch5.addConstraint(Sketcher.Constraint("DistanceX", 0, 3, -1, 1, Q("23.954545 mm")))
sketch5.addConstraint(Sketcher.Constraint("DistanceY", 0, 3, -1, 1, Q("34.585264 mm")))
pocket3 = body.newObject("PartDesign::Pocket", "Pocket002")
pocket3.Profile = sketch5
pocket3.Type = "ThroughAll"
pocket3.Reversed = True

doc.recompute()
